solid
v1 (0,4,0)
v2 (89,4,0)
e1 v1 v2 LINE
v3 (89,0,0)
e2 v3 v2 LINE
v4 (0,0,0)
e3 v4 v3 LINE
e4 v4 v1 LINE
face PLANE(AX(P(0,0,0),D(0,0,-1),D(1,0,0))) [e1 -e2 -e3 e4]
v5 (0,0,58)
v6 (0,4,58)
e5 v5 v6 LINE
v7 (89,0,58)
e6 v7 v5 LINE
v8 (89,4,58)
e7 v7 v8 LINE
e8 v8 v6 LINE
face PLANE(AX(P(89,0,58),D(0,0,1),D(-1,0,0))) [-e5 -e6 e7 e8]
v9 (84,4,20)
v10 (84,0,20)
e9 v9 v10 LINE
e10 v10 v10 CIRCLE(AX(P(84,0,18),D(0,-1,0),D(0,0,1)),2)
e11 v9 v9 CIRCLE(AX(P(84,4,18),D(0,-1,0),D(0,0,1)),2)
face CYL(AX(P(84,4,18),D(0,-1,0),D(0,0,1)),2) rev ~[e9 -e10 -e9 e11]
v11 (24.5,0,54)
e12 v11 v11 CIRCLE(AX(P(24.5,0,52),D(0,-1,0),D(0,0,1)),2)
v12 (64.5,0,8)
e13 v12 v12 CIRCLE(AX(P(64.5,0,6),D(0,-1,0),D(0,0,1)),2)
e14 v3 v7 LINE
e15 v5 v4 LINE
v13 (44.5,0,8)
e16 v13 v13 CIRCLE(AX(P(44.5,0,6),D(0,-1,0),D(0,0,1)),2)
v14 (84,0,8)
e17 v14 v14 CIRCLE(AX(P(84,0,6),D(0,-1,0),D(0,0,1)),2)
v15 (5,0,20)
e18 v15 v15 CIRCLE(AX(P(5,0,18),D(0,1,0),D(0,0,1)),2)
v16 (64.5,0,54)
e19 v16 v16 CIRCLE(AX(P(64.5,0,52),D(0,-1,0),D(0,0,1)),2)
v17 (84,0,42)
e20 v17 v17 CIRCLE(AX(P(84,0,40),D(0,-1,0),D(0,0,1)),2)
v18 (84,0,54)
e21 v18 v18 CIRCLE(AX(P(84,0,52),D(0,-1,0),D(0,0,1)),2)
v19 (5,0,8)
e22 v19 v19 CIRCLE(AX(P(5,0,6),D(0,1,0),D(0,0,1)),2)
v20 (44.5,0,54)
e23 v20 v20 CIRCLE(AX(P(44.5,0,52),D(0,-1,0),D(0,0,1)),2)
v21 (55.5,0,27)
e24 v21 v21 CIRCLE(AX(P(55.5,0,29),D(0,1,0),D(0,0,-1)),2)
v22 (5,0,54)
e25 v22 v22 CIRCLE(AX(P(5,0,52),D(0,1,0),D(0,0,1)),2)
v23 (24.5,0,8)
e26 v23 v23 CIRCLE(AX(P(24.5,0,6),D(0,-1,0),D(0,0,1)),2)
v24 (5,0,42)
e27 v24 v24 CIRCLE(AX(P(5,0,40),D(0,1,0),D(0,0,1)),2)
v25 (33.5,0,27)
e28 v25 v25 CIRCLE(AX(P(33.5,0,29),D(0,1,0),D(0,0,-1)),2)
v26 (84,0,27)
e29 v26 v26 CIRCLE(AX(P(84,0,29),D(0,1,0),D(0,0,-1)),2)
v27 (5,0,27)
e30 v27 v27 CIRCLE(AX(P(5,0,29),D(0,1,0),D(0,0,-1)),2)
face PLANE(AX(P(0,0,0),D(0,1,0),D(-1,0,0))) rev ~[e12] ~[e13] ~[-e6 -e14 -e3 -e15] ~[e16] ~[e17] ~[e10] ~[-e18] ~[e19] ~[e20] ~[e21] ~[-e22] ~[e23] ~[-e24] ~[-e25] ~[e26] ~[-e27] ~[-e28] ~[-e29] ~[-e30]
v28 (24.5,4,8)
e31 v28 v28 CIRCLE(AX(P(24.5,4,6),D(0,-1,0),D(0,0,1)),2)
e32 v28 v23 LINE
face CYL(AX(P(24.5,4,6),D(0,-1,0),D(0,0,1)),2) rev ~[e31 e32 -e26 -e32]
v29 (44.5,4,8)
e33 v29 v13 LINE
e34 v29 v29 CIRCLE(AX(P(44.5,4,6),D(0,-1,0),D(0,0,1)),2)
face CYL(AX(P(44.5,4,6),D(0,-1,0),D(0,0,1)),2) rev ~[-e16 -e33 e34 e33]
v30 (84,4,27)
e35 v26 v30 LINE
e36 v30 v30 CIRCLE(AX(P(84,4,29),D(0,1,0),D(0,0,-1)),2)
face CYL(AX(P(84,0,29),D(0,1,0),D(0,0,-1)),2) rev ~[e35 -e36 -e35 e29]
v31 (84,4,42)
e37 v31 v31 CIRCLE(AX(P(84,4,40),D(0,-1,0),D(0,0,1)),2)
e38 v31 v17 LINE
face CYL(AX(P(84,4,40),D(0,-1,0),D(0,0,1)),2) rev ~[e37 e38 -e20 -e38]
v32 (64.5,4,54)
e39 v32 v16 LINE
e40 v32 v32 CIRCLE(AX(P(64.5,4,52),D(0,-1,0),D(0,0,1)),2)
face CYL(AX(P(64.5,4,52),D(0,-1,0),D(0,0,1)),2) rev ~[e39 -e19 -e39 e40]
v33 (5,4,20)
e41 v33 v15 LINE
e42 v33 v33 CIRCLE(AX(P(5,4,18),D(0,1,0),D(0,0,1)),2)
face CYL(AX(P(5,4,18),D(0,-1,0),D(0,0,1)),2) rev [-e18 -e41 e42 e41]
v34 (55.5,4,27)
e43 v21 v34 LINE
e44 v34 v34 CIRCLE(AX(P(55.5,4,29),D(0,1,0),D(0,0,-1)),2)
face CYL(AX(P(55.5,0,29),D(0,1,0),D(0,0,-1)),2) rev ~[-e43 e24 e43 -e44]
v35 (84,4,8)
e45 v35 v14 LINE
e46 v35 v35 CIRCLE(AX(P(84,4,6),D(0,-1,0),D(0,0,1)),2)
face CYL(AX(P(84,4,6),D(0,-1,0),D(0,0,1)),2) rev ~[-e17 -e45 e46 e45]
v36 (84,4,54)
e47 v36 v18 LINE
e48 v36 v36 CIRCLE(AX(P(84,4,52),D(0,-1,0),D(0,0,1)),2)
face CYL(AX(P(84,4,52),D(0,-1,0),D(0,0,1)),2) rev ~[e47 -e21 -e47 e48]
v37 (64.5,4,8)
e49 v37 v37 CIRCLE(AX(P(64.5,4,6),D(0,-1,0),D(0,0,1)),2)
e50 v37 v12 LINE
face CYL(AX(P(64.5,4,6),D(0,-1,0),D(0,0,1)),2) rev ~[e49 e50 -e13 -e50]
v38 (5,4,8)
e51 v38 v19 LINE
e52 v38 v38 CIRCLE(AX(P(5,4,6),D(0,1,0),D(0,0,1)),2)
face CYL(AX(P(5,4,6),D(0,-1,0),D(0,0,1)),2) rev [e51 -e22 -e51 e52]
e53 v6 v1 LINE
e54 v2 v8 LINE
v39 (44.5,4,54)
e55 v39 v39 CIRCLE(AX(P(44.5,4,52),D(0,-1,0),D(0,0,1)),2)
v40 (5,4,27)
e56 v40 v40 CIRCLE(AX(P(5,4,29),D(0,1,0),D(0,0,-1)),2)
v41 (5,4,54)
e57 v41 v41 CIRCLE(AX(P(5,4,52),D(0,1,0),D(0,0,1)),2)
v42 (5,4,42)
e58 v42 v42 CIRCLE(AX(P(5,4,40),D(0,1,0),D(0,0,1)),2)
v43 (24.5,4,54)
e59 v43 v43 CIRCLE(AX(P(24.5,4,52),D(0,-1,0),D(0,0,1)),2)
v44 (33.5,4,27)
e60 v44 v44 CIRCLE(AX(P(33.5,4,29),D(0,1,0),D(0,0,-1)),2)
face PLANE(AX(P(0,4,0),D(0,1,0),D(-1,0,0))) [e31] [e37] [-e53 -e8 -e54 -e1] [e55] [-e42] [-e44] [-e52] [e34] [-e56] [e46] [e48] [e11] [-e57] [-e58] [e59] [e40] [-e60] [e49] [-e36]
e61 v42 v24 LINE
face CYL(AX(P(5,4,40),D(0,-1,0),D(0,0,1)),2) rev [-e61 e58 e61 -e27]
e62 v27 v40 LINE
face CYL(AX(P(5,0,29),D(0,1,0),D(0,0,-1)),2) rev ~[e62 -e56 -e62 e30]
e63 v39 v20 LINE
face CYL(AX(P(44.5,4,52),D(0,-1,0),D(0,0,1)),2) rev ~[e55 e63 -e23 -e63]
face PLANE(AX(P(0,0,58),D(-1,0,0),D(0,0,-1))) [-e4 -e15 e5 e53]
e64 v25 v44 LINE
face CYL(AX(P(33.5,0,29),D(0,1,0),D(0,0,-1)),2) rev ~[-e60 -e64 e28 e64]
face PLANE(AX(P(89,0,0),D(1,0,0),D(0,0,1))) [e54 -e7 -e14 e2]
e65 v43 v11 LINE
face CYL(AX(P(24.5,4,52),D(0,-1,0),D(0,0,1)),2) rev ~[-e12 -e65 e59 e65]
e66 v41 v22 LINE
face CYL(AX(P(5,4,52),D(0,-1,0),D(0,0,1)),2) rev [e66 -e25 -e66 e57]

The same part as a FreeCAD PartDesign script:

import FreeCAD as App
import Part
import Sketcher

V = App.Vector
Q = App.Units.Quantity

doc = App.newDocument("Part")
params = doc.addObject("Spreadsheet::Sheet", "Params")
for row, (alias, value) in enumerate([
    ("sketch1_width", "89 mm"),
    ("sketch1_height", "58 mm"),
    ("pad1_length", "4 mm"),
    ("sketch2_diameter", "4 mm"),
    ("hole_diameter", "4 mm"),
    ("hole_depth", "4 mm"),
    ("sketch3_diameter", "4 mm"),
    ("hole2_diameter", "4 mm"),
    ("hole2_depth", "4 mm"),
    ("sketch4_diameter", "4 mm"),
    ("hole3_diameter", "4 mm"),
    ("sketch5_diameter", "4 mm"),
    ("hole4_diameter", "4 mm"),
    ("hole4_depth", "4 mm"),
], start=1):
    params.set(f"A{row}", alias)
    params.set(f"B{row}", "=" + value)
    params.setAlias(f"B{row}", alias)

body = doc.addObject("PartDesign::Body", "Body")

# Sketch on XZ plane
sketch1 = doc.addObject("Sketcher::SketchObject", "Sketch")
body.addObject(sketch1)
sketch1.AttachmentSupport = (doc.XZ_Plane, [""])
sketch1.MapMode = "FlatFace"
sketch1.addGeometry([
    Part.LineSegment(V(89, 0, 0), V(0, 0, 0)),
    Part.LineSegment(V(0, 0, 0), V(0, 58, 0)),
    Part.LineSegment(V(0, 58, 0), V(89, 58, 0)),
    Part.LineSegment(V(89, 58, 0), V(89, 0, 0)),
], False)
sketch1.addConstraint([
    Sketcher.Constraint("Coincident", 0, 2, 1, 1),
    Sketcher.Constraint("Coincident", 1, 2, 2, 1),
    Sketcher.Constraint("Coincident", 2, 2, 3, 1),
    Sketcher.Constraint("Coincident", 3, 2, 0, 1),
    Sketcher.Constraint("Horizontal", 0),
    Sketcher.Constraint("Vertical", 1),
    Sketcher.Constraint("Horizontal", 2),
    Sketcher.Constraint("Vertical", 3),
    Sketcher.Constraint("Coincident", 0, 2, -1, 1),
    Sketcher.Constraint("DistanceX", 0, 2, 0, 1, Q("89 mm")),
    Sketcher.Constraint("DistanceY", 1, 1, 1, 2, Q("58 mm")),
])
sketch1.setExpression("Constraints[9]", "Params.sketch1_width")
sketch1.setExpression("Constraints[10]", "Params.sketch1_height")
pad1 = doc.addObject("PartDesign::Pad", "Pad")
body.addObject(pad1)
pad1.Profile = sketch1
pad1.setExpression("Length", "Params.pad1_length")
pad1.Reversed = True

# Sketch on XZ plane
sketch2 = doc.addObject("Sketcher::SketchObject", "Sketch001")
body.addObject(sketch2)
sketch2.AttachmentSupport = (doc.XZ_Plane, [""])
sketch2.MapMode = "FlatFace"
sketch2.AttachmentOffset = App.Placement(V(0, 0, -4), App.Rotation())
sketch2.addGeometry([
    Part.Circle(V(84, 6, 0), V(0, 0, 1), 2),
    Part.Circle(V(84, 52, 0), V(0, 0, 1), 2),
    Part.Circle(V(84, 40, 0), V(0, 0, 1), 2),
    Part.Circle(V(84, 18, 0), V(0, 0, 1), 2),
], False)
sketch2.addConstraint([
    Sketcher.Constraint("Equal", 0, 1),
    Sketcher.Constraint("Equal", 1, 2),
    Sketcher.Constraint("Equal", 2, 3),
    Sketcher.Constraint("Vertical", 0, 3, 1, 3),
    Sketcher.Constraint("Vertical", 1, 3, 2, 3),
    Sketcher.Constraint("Vertical", 2, 3, 3, 3),
    Sketcher.Constraint("Diameter", 0, Q("4 mm")),
    Sketcher.Constraint("DistanceX", -1, 1, 0, 3, Q("84 mm")),
    Sketcher.Constraint("DistanceY", -1, 1, 0, 3, Q("6 mm")),
    Sketcher.Constraint("DistanceY", -1, 1, 1, 3, Q("52 mm")),
    Sketcher.Constraint("DistanceY", -1, 1, 2, 3, Q("40 mm")),
    Sketcher.Constraint("DistanceY", -1, 1, 3, 3, Q("18 mm")),
])
sketch2.setExpression("Constraints[6]", "Params.sketch2_diameter")
doc.recompute()
hole = doc.addObject("PartDesign::Hole", "Hole")
body.addObject(hole)
hole.Profile = sketch2
hole.ThreadType = "None"
hole.setExpression("Diameter", "Params.hole_diameter")
hole.DepthType = "Dimension"
hole.setExpression("Depth", "Params.hole_depth")
hole.DrillPoint = "Flat"
hole.Reversed = True
doc.recompute()

datumplane = doc.addObject("PartDesign::Plane", "DatumPlane")
body.addObject(datumplane)
datumplane.AttachmentSupport = (doc.YZ_Plane, [""])
datumplane.MapMode = "FlatFace"
datumplane.AttachmentOffset = App.Placement(V(0, 0, 44.5), App.Rotation())
mirrored = doc.addObject("PartDesign::Mirrored", "Mirrored")
body.addObject(mirrored)
mirrored.Originals = [hole]
mirrored.MirrorPlane = (datumplane, [""])
body.Tip = mirrored

# Sketch on XZ plane
sketch3 = doc.addObject("Sketcher::SketchObject", "Sketch002")
body.addObject(sketch3)
sketch3.AttachmentSupport = (doc.XZ_Plane, [""])
sketch3.MapMode = "FlatFace"
sketch3.AttachmentOffset = App.Placement(V(0, 0, -4), App.Rotation())
sketch3.addGeometry([
    Part.Circle(V(64.5, 6, 0), V(0, 0, 1), 2),  # 0
    Part.Circle(V(24.5, 6, 0), V(0, 0, 1), 2),  # 1
    Part.Circle(V(44.5, 6, 0), V(0, 0, 1), 2),  # 2
    Part.Circle(V(64.5, 52, 0), V(0, 0, 1), 2),  # 3
    Part.Circle(V(44.5, 52, 0), V(0, 0, 1), 2),  # 4
    Part.Circle(V(24.5, 52, 0), V(0, 0, 1), 2),  # 5
], False)
sketch3.addConstraint([
    Sketcher.Constraint("Equal", 0, 1),
    Sketcher.Constraint("Equal", 1, 2),
    Sketcher.Constraint("Equal", 2, 3),
    Sketcher.Constraint("Equal", 3, 4),
    Sketcher.Constraint("Equal", 4, 5),
    Sketcher.Constraint("Horizontal", 0, 3, 1, 3),
    Sketcher.Constraint("Horizontal", 1, 3, 2, 3),
    Sketcher.Constraint("Horizontal", 3, 3, 4, 3),
    Sketcher.Constraint("Horizontal", 4, 3, 5, 3),
    Sketcher.Constraint("Vertical", 0, 3, 3, 3),
    Sketcher.Constraint("Vertical", 2, 3, 4, 3),
    Sketcher.Constraint("Vertical", 1, 3, 5, 3),
    Sketcher.Constraint("Diameter", 0, Q("4 mm")),
    Sketcher.Constraint("DistanceY", -1, 1, 0, 3, Q("6 mm")),
    Sketcher.Constraint("DistanceY", -1, 1, 3, 3, Q("52 mm")),
    Sketcher.Constraint("DistanceX", 1, 3, 0, 3, Q("40 mm")),
    Sketcher.Constraint("DistanceX", 2, 3, 0, 3, Q("20 mm")),
    Sketcher.Constraint("DistanceX", -1, 1, 0, 3, Q("64.5 mm")),
])
sketch3.setExpression("Constraints[12]", "Params.sketch3_diameter")
doc.recompute()
hole2 = doc.addObject("PartDesign::Hole", "Hole001")
body.addObject(hole2)
hole2.Profile = sketch3
hole2.ThreadType = "None"
hole2.setExpression("Diameter", "Params.hole2_diameter")
hole2.DepthType = "Dimension"
hole2.setExpression("Depth", "Params.hole2_depth")
hole2.DrillPoint = "Flat"
hole2.Reversed = True

# Sketch on XZ plane
sketch4 = doc.addObject("Sketcher::SketchObject", "Sketch003")
body.addObject(sketch4)
sketch4.AttachmentSupport = (doc.XZ_Plane, [""])
sketch4.MapMode = "FlatFace"
sketch4.addGeometry([
    Part.Circle(V(5, 29, 0), V(0, 0, 1), 2),
    Part.Circle(V(84, 29, 0), V(0, 0, 1), 2),
], False)
sketch4.addConstraint([
    Sketcher.Constraint("Equal", 0, 1),
    Sketcher.Constraint("Horizontal", 0, 3, 1, 3),
    Sketcher.Constraint("Diameter", 0, Q("4 mm")),
    Sketcher.Constraint("DistanceX", -1, 1, 0, 3, Q("5 mm")),
    Sketcher.Constraint("DistanceY", -1, 1, 0, 3, Q("29 mm")),
    Sketcher.Constraint("DistanceX", -1, 1, 1, 3, Q("84 mm")),
])
sketch4.setExpression("Constraints[2]", "Params.sketch4_diameter")
doc.recompute()
hole3 = doc.addObject("PartDesign::Hole", "Hole002")
body.addObject(hole3)
hole3.Profile = sketch4
hole3.ThreadType = "None"
hole3.setExpression("Diameter", "Params.hole3_diameter")
hole3.DepthType = "ThroughAll"

# Sketch on XZ plane
sketch5 = doc.addObject("Sketcher::SketchObject", "Sketch004")
body.addObject(sketch5)
sketch5.AttachmentSupport = (doc.XZ_Plane, [""])
sketch5.MapMode = "FlatFace"
sketch5.addGeometry([
    Part.Circle(V(55.5, 29, 0), V(0, 0, 1), 2),
    Part.Circle(V(33.5, 29, 0), V(0, 0, 1), 2),
], False)
sketch5.addConstraint([
    Sketcher.Constraint("Equal", 0, 1),
    Sketcher.Constraint("Horizontal", 0, 3, 1, 3),
    Sketcher.Constraint("Diameter", 0, Q("4 mm")),
    Sketcher.Constraint("DistanceY", -1, 1, 0, 3, Q("29 mm")),
    Sketcher.Constraint("DistanceX", 1, 3, 0, 3, Q("22 mm")),
    Sketcher.Constraint("DistanceX", -1, 1, 0, 3, Q("55.5 mm")),
])
sketch5.setExpression("Constraints[2]", "Params.sketch5_diameter")
doc.recompute()
hole4 = doc.addObject("PartDesign::Hole", "Hole003")
body.addObject(hole4)
hole4.Profile = sketch5
hole4.ThreadType = "None"
hole4.setExpression("Diameter", "Params.hole4_diameter")
hole4.DepthType = "Dimension"
hole4.setExpression("Depth", "Params.hole4_depth")
hole4.DrillPoint = "Flat"

doc.recompute()
